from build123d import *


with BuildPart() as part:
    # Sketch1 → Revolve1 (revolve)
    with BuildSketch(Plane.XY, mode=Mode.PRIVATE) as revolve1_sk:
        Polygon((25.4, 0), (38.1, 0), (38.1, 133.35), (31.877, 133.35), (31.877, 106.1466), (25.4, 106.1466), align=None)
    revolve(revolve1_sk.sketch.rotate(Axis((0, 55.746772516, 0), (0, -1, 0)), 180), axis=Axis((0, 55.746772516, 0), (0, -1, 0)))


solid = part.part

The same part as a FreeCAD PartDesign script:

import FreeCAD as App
import Part
import Sketcher
Q = App.Units.Quantity


def add_polygon(sketch, points):
    """Adds a closed chain of lines whose ends are joined by coincident constraints."""
    first, n = sketch.GeometryCount, len(points)
    for a, b in zip(points, points[1:] + points[:1]):
        sketch.addGeometry(Part.LineSegment(App.Vector(*a, 0), App.Vector(*b, 0)), False)
    for i in range(n):
        sketch.addConstraint(Sketcher.Constraint("Coincident", first + i, 2, first + (i + 1) % n, 1))

doc = App.newDocument("Part")
params = doc.addObject("Spreadsheet::Sheet", "Params")
for row, (alias, value) in enumerate([
    ("sketch1_width", "0.5 in"),
    ("sketch1_height", "5.25 in"),
    ("sketch1_width2", "0.245 in"),
    ("sketch1_height2", "1.071 in"),
    ("revolution_angle", "360 deg"),
], start=1):
    params.set(f"A{row}", alias)
    params.set(f"B{row}", "=" + value)
    params.setAlias(f"B{row}", alias)

body = doc.addObject("PartDesign::Body", "Body")

# Sketch on XY plane
sketch1 = body.newObject("Sketcher::SketchObject", "Sketch")
sketch1.AttachmentSupport = (doc.getObject("XY_Plane"), [""])
sketch1.MapMode = "FlatFace"
add_polygon(sketch1, [(25.4, 0), (38.1, 0), (38.1, 133.35), (31.877, 133.35), (31.877, 106.1466), (25.4, 106.1466)])  # lines 0-5
sketch1.addConstraint([
    Sketcher.Constraint("Horizontal", 0),
    Sketcher.Constraint("Vertical", 1),
    Sketcher.Constraint("Horizontal", 2),
    Sketcher.Constraint("Vertical", 3),
    Sketcher.Constraint("Horizontal", 4),
    Sketcher.Constraint("Vertical", 5),
    Sketcher.Constraint("PointOnObject", 0, 2, -1),
    Sketcher.Constraint("DistanceX", 0, 1, 0, 2, Q("0.5 in")),
    Sketcher.Constraint("DistanceX", -1, 1, 4, 2, Q("1 in")),
    Sketcher.Constraint("DistanceY", 1, 1, 1, 2, Q("5.25 in")),
    Sketcher.Constraint("DistanceX", 2, 2, 2, 1, Q("0.245 in")),
    Sketcher.Constraint("DistanceY", 3, 2, 3, 1, Q("1.071 in")),
])
sketch1.setExpression("Constraints[13]", "Params.sketch1_width")
sketch1.setExpression("Constraints[15]", "Params.sketch1_height")
sketch1.setExpression("Constraints[16]", "Params.sketch1_width2")
sketch1.setExpression("Constraints[17]", "Params.sketch1_height2")
revolution = body.newObject("PartDesign::Revolution", "Revolution")
revolution.Profile = sketch1
revolution.ReferenceAxis = (sketch1, ["V_Axis"])
revolution.setExpression("Angle", "Params.revolution_angle")

doc.recompute()
